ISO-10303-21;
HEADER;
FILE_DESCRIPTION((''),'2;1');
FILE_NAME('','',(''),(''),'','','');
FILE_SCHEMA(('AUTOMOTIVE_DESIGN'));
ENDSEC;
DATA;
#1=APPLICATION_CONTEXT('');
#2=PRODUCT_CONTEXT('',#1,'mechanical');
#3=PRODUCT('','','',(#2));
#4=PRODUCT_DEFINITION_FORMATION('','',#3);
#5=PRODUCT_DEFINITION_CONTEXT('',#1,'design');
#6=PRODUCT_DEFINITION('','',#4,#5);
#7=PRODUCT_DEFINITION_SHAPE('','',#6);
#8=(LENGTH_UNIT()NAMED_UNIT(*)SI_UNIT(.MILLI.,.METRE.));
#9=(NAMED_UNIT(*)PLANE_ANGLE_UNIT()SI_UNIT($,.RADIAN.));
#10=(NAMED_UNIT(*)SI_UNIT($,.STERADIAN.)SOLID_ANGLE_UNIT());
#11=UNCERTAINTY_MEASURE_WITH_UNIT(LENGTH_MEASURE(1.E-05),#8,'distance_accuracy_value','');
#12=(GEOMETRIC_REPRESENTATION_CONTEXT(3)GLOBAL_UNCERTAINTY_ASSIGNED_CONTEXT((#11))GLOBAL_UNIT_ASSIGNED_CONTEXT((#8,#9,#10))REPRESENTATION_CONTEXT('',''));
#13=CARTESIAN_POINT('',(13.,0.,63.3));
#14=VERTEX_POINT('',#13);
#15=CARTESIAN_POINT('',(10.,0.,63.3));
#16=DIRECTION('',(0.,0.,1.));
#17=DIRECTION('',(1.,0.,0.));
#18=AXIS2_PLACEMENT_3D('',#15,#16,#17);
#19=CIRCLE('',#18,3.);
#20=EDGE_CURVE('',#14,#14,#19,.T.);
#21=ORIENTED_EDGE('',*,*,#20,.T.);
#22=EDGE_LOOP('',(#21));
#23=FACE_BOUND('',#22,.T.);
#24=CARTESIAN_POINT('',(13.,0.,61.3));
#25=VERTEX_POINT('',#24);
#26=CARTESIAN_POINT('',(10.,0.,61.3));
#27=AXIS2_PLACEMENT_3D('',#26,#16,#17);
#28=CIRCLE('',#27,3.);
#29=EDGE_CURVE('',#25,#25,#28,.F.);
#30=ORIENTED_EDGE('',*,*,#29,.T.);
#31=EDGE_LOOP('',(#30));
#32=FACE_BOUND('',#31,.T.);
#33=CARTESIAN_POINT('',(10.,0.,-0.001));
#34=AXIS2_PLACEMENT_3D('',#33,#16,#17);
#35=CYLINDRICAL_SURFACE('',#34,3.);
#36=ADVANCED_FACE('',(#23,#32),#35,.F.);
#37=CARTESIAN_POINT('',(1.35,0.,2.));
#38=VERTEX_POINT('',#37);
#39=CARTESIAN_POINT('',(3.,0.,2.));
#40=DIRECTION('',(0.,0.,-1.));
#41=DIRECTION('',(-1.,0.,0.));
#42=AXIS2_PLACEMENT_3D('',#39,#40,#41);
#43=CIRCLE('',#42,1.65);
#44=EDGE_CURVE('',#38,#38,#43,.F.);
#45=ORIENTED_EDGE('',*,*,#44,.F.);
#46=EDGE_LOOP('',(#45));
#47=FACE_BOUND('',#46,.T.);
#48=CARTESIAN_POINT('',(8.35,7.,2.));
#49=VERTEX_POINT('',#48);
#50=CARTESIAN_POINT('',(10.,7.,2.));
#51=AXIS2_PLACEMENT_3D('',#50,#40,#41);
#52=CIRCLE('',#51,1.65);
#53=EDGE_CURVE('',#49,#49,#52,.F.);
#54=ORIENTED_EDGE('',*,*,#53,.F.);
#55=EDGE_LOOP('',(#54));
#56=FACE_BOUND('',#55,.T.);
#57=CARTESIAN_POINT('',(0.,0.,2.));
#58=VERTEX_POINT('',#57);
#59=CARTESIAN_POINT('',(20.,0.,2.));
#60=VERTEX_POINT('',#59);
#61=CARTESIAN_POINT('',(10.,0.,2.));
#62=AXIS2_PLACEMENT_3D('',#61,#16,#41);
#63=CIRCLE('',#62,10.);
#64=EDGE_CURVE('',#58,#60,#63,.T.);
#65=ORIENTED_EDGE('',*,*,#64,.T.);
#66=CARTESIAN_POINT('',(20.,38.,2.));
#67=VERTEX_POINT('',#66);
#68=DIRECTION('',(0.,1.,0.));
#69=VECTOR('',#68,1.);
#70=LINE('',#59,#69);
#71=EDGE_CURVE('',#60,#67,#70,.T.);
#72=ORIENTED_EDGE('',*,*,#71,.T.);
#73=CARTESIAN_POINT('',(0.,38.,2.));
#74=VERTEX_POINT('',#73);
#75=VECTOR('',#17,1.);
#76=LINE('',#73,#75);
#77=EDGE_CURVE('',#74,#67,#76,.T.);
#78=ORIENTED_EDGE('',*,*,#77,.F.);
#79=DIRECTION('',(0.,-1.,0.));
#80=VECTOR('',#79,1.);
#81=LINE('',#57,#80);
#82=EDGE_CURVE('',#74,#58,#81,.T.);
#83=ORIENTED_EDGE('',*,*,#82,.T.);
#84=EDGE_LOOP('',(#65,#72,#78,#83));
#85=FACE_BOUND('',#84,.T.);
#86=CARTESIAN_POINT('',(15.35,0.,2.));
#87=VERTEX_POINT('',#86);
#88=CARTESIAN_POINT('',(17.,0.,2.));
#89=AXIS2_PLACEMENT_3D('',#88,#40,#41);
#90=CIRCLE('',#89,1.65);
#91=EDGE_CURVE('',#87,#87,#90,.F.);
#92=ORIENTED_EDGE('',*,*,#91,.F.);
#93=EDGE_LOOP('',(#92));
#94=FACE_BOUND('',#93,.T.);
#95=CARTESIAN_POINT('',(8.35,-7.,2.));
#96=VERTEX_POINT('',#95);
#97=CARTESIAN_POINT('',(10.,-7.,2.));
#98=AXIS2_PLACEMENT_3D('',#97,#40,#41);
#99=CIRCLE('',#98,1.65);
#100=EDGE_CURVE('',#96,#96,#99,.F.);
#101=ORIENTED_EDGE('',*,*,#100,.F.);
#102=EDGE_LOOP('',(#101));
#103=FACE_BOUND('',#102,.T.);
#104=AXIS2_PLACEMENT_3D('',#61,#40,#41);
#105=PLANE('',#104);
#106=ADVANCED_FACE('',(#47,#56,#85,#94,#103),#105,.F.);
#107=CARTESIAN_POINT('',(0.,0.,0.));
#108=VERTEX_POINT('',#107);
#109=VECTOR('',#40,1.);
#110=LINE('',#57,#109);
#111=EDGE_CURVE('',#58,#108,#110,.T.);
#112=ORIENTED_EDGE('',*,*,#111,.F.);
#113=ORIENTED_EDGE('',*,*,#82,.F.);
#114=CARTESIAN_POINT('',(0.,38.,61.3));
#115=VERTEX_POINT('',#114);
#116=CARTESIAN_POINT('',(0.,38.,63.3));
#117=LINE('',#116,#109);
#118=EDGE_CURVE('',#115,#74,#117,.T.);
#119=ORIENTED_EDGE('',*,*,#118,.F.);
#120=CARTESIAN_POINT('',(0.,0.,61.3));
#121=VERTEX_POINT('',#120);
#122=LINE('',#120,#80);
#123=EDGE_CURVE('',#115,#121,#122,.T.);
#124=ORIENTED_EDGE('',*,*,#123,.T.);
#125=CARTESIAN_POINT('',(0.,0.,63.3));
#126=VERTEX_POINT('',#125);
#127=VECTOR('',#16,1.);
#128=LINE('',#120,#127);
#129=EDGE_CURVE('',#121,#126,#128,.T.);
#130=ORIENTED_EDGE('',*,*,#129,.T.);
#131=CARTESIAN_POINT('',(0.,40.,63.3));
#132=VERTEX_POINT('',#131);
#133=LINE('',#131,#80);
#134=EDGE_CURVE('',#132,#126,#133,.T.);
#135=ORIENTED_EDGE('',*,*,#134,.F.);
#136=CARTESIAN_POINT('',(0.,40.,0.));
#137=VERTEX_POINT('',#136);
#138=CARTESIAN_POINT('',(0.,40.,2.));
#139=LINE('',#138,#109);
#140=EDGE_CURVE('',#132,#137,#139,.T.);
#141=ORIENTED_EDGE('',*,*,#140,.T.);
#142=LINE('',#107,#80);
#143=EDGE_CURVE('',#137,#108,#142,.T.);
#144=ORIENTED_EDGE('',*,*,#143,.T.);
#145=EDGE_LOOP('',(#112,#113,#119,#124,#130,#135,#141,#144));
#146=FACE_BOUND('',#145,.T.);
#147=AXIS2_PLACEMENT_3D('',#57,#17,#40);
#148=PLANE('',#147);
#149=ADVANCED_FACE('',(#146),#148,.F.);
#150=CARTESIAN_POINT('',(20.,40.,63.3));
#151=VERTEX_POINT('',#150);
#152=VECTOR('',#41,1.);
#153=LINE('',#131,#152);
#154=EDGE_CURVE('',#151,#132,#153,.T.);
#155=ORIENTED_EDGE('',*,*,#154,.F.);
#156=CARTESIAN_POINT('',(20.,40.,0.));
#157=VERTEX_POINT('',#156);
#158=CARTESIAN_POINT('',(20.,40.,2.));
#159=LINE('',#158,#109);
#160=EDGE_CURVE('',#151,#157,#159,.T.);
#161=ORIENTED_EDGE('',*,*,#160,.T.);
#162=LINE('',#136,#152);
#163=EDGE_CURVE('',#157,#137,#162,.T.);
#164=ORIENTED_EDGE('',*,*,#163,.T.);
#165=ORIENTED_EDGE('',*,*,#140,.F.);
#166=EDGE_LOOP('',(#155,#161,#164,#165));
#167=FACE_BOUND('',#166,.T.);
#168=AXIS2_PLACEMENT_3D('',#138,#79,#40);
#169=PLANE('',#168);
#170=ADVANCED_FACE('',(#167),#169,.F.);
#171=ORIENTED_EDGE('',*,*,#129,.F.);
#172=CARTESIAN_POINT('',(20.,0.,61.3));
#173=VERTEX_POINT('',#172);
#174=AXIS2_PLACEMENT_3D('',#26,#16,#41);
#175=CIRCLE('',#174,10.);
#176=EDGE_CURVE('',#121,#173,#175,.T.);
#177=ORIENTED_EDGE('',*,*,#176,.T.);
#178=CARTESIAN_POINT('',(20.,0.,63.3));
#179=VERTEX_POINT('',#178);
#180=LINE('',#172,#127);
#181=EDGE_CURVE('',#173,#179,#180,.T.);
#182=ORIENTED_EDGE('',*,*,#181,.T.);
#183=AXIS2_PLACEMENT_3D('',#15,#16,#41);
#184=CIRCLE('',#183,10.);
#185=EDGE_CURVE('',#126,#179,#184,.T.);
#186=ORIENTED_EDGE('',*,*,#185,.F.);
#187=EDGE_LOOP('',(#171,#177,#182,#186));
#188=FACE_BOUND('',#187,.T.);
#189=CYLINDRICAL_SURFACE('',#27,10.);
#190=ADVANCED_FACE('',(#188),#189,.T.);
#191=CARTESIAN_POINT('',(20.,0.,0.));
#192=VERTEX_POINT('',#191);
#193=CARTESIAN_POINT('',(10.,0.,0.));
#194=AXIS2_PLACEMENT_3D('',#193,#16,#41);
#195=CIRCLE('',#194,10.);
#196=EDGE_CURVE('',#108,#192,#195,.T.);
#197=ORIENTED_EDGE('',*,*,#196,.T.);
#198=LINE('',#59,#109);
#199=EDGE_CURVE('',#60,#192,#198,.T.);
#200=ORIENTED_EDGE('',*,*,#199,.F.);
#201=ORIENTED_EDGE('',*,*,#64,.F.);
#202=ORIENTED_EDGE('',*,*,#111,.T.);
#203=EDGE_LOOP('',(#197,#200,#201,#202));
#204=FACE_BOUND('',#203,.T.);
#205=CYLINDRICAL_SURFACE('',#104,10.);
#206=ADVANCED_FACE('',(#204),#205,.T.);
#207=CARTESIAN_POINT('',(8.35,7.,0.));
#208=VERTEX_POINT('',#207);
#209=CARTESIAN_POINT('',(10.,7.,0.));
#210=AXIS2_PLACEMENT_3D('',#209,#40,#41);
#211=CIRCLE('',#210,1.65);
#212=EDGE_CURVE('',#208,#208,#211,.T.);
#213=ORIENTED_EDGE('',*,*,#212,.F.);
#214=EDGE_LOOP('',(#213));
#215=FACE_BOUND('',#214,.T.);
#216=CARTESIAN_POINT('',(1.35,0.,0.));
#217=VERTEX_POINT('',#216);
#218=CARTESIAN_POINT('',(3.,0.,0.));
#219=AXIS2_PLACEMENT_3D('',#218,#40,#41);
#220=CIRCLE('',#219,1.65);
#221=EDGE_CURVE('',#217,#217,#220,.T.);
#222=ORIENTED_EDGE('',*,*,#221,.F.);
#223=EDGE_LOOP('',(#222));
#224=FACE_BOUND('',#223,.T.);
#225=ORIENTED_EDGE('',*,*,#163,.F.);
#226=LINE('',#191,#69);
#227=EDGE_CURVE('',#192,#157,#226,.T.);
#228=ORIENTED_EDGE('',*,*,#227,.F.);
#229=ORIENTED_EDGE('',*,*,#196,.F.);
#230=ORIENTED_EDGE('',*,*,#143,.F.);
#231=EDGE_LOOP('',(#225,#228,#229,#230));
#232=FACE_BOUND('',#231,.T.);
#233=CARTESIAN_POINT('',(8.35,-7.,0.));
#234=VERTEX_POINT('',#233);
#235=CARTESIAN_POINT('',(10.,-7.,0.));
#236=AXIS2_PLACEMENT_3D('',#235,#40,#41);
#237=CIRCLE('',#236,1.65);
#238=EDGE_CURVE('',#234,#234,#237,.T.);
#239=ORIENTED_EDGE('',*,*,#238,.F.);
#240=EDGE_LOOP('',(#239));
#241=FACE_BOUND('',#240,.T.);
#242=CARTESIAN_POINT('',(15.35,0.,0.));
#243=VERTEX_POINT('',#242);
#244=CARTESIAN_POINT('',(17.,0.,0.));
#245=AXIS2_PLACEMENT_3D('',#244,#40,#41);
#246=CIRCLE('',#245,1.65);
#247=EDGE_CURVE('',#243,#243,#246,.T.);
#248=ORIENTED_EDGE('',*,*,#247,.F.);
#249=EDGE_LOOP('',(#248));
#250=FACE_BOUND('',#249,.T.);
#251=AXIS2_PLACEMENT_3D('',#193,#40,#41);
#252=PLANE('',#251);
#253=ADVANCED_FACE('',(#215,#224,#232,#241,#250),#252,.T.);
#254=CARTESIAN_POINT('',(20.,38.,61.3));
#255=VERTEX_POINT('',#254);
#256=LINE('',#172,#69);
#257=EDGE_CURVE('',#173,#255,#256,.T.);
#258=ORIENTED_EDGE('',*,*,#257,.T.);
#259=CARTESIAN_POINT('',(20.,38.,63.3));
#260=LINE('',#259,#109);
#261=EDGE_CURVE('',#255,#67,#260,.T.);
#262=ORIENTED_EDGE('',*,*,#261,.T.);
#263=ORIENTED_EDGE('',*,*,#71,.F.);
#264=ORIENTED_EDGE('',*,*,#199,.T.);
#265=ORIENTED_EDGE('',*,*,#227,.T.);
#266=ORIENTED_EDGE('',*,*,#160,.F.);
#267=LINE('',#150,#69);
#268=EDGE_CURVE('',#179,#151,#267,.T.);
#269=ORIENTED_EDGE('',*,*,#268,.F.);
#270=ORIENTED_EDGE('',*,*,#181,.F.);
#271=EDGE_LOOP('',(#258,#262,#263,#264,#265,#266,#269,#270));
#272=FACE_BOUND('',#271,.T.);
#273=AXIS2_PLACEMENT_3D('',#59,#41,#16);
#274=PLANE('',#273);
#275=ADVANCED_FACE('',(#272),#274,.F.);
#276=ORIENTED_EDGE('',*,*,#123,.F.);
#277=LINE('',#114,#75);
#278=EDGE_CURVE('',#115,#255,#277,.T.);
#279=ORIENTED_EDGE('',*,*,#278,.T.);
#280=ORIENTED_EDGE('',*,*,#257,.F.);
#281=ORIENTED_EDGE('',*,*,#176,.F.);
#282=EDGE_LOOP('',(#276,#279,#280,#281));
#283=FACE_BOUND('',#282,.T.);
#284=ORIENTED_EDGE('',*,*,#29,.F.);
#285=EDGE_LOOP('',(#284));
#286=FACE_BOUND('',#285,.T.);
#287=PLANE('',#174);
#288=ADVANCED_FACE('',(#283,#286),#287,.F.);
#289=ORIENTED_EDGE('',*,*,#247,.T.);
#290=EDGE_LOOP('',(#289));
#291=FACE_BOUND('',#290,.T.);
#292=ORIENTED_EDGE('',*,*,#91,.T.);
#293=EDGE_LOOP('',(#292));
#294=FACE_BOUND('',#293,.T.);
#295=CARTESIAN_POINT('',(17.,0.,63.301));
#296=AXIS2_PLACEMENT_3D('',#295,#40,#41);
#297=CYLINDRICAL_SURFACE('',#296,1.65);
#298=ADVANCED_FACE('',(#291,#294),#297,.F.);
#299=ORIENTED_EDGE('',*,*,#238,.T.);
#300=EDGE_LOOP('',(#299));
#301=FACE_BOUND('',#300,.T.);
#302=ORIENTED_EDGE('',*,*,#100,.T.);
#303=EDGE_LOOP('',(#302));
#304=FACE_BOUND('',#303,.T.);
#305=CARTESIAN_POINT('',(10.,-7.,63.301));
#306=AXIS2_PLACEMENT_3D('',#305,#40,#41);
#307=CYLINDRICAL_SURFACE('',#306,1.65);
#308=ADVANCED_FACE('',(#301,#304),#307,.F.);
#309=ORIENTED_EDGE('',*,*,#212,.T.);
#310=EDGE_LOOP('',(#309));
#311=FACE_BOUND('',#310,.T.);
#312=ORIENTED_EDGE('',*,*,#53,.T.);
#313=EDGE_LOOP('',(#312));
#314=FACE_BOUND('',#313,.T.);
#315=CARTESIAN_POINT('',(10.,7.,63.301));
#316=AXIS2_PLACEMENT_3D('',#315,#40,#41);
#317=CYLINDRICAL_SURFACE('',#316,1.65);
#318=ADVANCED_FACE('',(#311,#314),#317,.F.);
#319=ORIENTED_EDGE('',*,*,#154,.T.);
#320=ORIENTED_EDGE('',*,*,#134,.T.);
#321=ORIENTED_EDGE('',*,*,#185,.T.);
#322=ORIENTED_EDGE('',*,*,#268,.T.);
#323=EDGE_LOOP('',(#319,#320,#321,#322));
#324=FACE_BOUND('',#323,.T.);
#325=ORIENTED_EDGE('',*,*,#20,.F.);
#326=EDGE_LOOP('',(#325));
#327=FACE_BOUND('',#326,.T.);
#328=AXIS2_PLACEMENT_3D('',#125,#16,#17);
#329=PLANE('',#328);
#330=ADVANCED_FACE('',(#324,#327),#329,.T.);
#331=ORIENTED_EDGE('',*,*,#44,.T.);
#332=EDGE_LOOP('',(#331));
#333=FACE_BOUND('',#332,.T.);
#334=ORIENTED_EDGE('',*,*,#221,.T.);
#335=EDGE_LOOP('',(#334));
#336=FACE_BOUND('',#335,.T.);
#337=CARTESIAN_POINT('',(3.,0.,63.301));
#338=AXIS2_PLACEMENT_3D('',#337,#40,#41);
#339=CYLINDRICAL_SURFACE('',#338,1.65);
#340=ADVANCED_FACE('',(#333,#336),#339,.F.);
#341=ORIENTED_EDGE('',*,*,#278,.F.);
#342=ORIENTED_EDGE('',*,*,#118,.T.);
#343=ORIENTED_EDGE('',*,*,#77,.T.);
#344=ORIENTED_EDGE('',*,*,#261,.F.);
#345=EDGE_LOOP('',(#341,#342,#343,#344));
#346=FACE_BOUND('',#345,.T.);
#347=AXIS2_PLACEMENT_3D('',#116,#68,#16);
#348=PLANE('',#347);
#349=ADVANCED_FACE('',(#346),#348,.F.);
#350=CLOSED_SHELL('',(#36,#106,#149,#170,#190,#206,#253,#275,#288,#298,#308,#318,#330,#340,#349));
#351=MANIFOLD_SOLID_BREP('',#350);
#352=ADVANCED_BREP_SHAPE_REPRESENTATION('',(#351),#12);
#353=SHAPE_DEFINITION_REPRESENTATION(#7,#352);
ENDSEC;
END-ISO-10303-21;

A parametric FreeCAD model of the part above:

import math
import FreeCAD as App
import Part
import Sketcher


def add_polygon(sketch, points):
    """Adds a closed chain of lines whose ends are joined by coincident constraints."""
    first, n = sketch.GeometryCount, len(points)
    for a, b in zip(points, points[1:] + points[:1]):
        sketch.addGeometry(Part.LineSegment(App.Vector(*a, 0), App.Vector(*b, 0)), False)
    for i in range(n):
        sketch.addConstraint(Sketcher.Constraint("Coincident", first + i, 2, first + (i + 1) % n, 1))

doc = App.newDocument("Part")
params = doc.addObject("Spreadsheet::Sheet", "Params")
for row, (alias, value) in enumerate([
    ("sketch1_radius", "10 mm"),
    ("sketch1_height", "40 mm"),
    ("pad1_length", "2 mm"),
    ("sketch2_width", "20 mm"),
    ("sketch2_height", "2 mm"),
    ("pad2_length", "61.3 mm"),
    ("sketch3_diameter", "6 mm"),
    ("sketch4_diameter", "3.3 mm"),
    ("sketch5_diameter", "3.3 mm"),
    ("sketch6_diameter", "3.3 mm"),
    ("sketch7_diameter", "3.3 mm"),
], start=1):
    params.set(f"A{row}", alias)
    params.set(f"B{row}", "=" + value)
    params.setAlias(f"B{row}", alias)

body = doc.addObject("PartDesign::Body", "Body")

# Sketch on XY plane
sketch1 = doc.addObject("Sketcher::SketchObject", "Sketch")
body.addObject(sketch1)
sketch1.AttachmentSupport = (doc.XY_Plane, [""])
sketch1.MapMode = "FlatFace"
sketch1.addGeometry([
    Part.LineSegment(App.Vector(0, 40, 0), App.Vector(0, 0, 0)),
    Part.ArcOfCircle(Part.Circle(App.Vector(10, 0, 0), App.Vector(0, 0, 1), 10), math.radians(180), math.radians(360)),
    Part.LineSegment(App.Vector(20, 0, 0), App.Vector(20, 40, 0)),
    Part.LineSegment(App.Vector(20, 40, 0), App.Vector(0, 40, 0)),
], False)
sketch1.addConstraint([
    Sketcher.Constraint("Tangent", 0, 2, 1, 1),
    Sketcher.Constraint("Tangent", 1, 2, 2, 1),
    Sketcher.Constraint("Coincident", 2, 2, 3, 1),
    Sketcher.Constraint("Coincident", 3, 2, 0, 1),
    Sketcher.Constraint("Vertical", 0),
    Sketcher.Constraint("Vertical", 2),
    Sketcher.Constraint("Horizontal", 3),
    Sketcher.Constraint("Coincident", 0, 2, -1, 1),
    Sketcher.Constraint("Radius", 1, 10.0),
    Sketcher.Constraint("DistanceY", 0, 2, 0, 1, 40.0),
])
sketch1.setExpression("Constraints[8]", "Params.sketch1_radius")
sketch1.setExpression("Constraints[9]", "Params.sketch1_height")
pad1 = doc.addObject("PartDesign::Pad", "Pad")
body.addObject(pad1)
pad1.Profile = sketch1
pad1.setExpression("Length", "Params.pad1_length")

# Sketch on XY plane
sketch2 = doc.addObject("Sketcher::SketchObject", "Sketch001")
body.addObject(sketch2)
sketch2.AttachmentSupport = (doc.XY_Plane, [""])
sketch2.MapMode = "FlatFace"
sketch2.AttachmentOffset = App.Placement(App.Vector(0, 0, 2), App.Rotation())
add_polygon(sketch2, [(0, 40), (0, 38), (20, 38), (20, 40)])  # lines 0-3
sketch2.addConstraint([
    Sketcher.Constraint("Vertical", 0),
    Sketcher.Constraint("Horizontal", 1),
    Sketcher.Constraint("Vertical", 2),
    Sketcher.Constraint("Horizontal", 3),
    Sketcher.Constraint("PointOnObject", 0, 2, -2),
    Sketcher.Constraint("DistanceX", 1, 1, 1, 2, 20.0),
    Sketcher.Constraint("DistanceY", 0, 2, 0, 1, 2.0),
    Sketcher.Constraint("DistanceY", -1, 1, 0, 2, 38.0),
])
sketch2.setExpression("Constraints[9]", "Params.sketch2_width")
sketch2.setExpression("Constraints[10]", "Params.sketch2_height")
pad2 = doc.addObject("PartDesign::Pad", "Pad001")
body.addObject(pad2)
pad2.Profile = sketch2
pad2.setExpression("Length", "Params.pad2_length")
doc.recompute()

datumplane = doc.addObject("PartDesign::Plane", "DatumPlane")
body.addObject(datumplane)
datumplane.AttachmentSupport = (doc.XY_Plane, [""])
datumplane.MapMode = "FlatFace"
datumplane.AttachmentOffset = App.Placement(App.Vector(0, 0, 31.65), App.Rotation())
mirrored = doc.addObject("PartDesign::Mirrored", "Mirrored")
body.addObject(mirrored)
mirrored.Originals = [pad1]
mirrored.MirrorPlane = (datumplane, [""])
body.Tip = mirrored

# Sketch on XY plane
sketch3 = doc.addObject("Sketcher::SketchObject", "Sketch002")
body.addObject(sketch3)
sketch3.AttachmentSupport = (doc.XY_Plane, [""])
sketch3.MapMode = "FlatFace"
sketch3.AttachmentOffset = App.Placement(App.Vector(0, 0, 63.3), App.Rotation())
sketch3.addGeometry(Part.Circle(App.Vector(10, 0, 0), App.Vector(0, 0, 1), 3), False)
sketch3.addConstraint([
    Sketcher.Constraint("PointOnObject", 0, 3, -1),
    Sketcher.Constraint("Diameter", 0, 6.0),
    Sketcher.Constraint("DistanceX", -1, 1, 0, 3, 10.0),
])
sketch3.setExpression("Constraints[1]", "Params.sketch3_diameter")
pocket1 = doc.addObject("PartDesign::Pocket", "Pocket")
body.addObject(pocket1)
pocket1.Profile = sketch3
pocket1.Type = "UpToFirst"

# Sketch on XY plane
sketch4 = doc.addObject("Sketcher::SketchObject", "Sketch003")
body.addObject(sketch4)
sketch4.AttachmentSupport = (doc.XY_Plane, [""])
sketch4.MapMode = "FlatFace"
sketch4.addGeometry(Part.Circle(App.Vector(10, -7, 0), App.Vector(0, 0, 1), 1.6), False)
sketch4.addConstraint([
    Sketcher.Constraint("Diameter", 0, 3.3),
    Sketcher.Constraint("DistanceX", -1, 1, 0, 3, 10.0),
    Sketcher.Constraint("DistanceY", 0, 3, -1, 1, 7.0),
])
sketch4.setExpression("Constraints[0]", "Params.sketch4_diameter")
pocket2 = doc.addObject("PartDesign::Pocket", "Pocket001")
body.addObject(pocket2)
pocket2.Profile = sketch4
pocket2.Type = "UpToFirst"
pocket2.Reversed = True

# Sketch on XY plane
sketch5 = doc.addObject("Sketcher::SketchObject", "Sketch004")
body.addObject(sketch5)
sketch5.AttachmentSupport = (doc.XY_Plane, [""])
sketch5.MapMode = "FlatFace"
sketch5.addGeometry(Part.Circle(App.Vector(17, 0, 0), App.Vector(0, 0, 1), 1.6), False)
sketch5.addConstraint([
    Sketcher.Constraint("PointOnObject", 0, 3, -1),
    Sketcher.Constraint("Diameter", 0, 3.3),
    Sketcher.Constraint("DistanceX", -1, 1, 0, 3, 17.0),
])
sketch5.setExpression("Constraints[1]", "Params.sketch5_diameter")
pocket3 = doc.addObject("PartDesign::Pocket", "Pocket002")
body.addObject(pocket3)
pocket3.Profile = sketch5
pocket3.Type = "UpToFirst"
pocket3.Reversed = True

# Sketch on XY plane
sketch6 = doc.addObject("Sketcher::SketchObject", "Sketch005")
body.addObject(sketch6)
sketch6.AttachmentSupport = (doc.XY_Plane, [""])
sketch6.MapMode = "FlatFace"
sketch6.addGeometry(Part.Circle(App.Vector(10, 7, 0), App.Vector(0, 0, 1), 1.6), False)
sketch6.addConstraint([
    Sketcher.Constraint("Diameter", 0, 3.3),
    Sketcher.Constraint("DistanceX", -1, 1, 0, 3, 10.0),
    Sketcher.Constraint("DistanceY", -1, 1, 0, 3, 7.0),
])
sketch6.setExpression("Constraints[0]", "Params.sketch6_diameter")
pocket4 = doc.addObject("PartDesign::Pocket", "Pocket003")
body.addObject(pocket4)
pocket4.Profile = sketch6
pocket4.Type = "UpToFirst"
pocket4.Reversed = True

# Sketch on XY plane
sketch7 = doc.addObject("Sketcher::SketchObject", "Sketch006")
body.addObject(sketch7)
sketch7.AttachmentSupport = (doc.XY_Plane, [""])
sketch7.MapMode = "FlatFace"
sketch7.addGeometry(Part.Circle(App.Vector(3, 0, 0), App.Vector(0, 0, 1), 1.6), False)
sketch7.addConstraint([
    Sketcher.Constraint("PointOnObject", 0, 3, -1),
    Sketcher.Constraint("Diameter", 0, 3.3),
    Sketcher.Constraint("DistanceX", -1, 1, 0, 3, 3.0),
])
sketch7.setExpression("Constraints[1]", "Params.sketch7_diameter")
pocket5 = doc.addObject("PartDesign::Pocket", "Pocket004")
body.addObject(pocket5)
pocket5.Profile = sketch7
pocket5.Type = "UpToFirst"
pocket5.Reversed = True

doc.recompute()
